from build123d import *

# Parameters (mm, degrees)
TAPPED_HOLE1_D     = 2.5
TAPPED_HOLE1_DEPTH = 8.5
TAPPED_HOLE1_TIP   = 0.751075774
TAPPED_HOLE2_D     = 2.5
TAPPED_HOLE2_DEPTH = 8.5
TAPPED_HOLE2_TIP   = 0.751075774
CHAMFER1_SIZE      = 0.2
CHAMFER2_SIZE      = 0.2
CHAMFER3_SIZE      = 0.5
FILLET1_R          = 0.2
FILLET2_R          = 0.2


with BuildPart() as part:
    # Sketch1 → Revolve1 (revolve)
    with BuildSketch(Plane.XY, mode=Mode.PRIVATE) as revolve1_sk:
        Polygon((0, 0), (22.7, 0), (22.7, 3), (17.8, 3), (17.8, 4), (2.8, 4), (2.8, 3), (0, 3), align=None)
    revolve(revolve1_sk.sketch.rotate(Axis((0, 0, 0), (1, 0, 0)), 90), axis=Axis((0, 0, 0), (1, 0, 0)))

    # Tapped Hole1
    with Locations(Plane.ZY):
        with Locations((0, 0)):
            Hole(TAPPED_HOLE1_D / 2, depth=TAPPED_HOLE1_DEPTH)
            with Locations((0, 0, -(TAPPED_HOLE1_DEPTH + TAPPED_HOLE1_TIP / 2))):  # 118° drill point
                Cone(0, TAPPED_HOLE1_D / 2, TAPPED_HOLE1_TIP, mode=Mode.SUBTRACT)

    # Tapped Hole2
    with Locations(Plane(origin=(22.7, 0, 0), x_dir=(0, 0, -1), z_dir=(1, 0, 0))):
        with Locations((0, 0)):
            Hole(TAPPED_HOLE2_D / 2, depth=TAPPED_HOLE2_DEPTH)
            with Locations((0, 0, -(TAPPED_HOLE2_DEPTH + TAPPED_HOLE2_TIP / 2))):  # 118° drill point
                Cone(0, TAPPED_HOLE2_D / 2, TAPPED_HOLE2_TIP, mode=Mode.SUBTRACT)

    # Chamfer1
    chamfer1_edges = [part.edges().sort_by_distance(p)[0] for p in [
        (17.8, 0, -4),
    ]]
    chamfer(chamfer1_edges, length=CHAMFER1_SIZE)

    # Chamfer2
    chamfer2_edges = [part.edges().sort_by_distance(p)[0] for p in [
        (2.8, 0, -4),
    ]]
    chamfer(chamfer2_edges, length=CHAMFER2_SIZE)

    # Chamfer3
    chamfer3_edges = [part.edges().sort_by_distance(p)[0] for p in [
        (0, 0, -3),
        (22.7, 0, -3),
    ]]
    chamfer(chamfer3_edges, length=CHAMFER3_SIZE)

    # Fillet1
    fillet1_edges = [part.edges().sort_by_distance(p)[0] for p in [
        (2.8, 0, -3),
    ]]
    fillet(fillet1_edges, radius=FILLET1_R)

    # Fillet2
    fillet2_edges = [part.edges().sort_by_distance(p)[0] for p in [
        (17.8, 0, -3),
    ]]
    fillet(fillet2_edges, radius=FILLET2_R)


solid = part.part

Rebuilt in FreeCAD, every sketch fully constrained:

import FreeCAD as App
import Part
import Sketcher

V = App.Vector


def edges_at(feature, points):
    """Names of the edges that pass closest to the given points."""
    edges = feature.Shape.Edges
    near = lambda p: min(range(len(edges)), key=lambda i: edges[i].distToShape(Part.Vertex(*p))[0])
    return sorted({f"Edge{near(p) + 1}" for p in points})


def add_polygon(sketch, points):
    """Adds a closed chain of lines whose ends are joined by coincident constraints."""
    first, n = sketch.GeometryCount, len(points)
    for a, b in zip(points, points[1:] + points[:1]):
        sketch.addGeometry(Part.LineSegment(App.Vector(*a, 0), App.Vector(*b, 0)), False)
    for i in range(n):
        sketch.addConstraint(Sketcher.Constraint("Coincident", first + i, 2, first + (i + 1) % n, 1))

doc = App.newDocument("Part")
body = doc.addObject("PartDesign::Body", "Body")

# Sketch on XY plane
sketch1 = doc.addObject("Sketcher::SketchObject", "Sketch")
body.addObject(sketch1)
sketch1.AttachmentSupport = (doc.XY_Plane, [""])
sketch1.MapMode = "FlatFace"
add_polygon(sketch1, [(0, 0), (22.7, 0), (22.7, 3), (17.8, 3), (17.8, 4), (2.8, 4), (2.8, 3), (0, 3)])  # lines 0-7
sketch1.addConstraint(Sketcher.Constraint("Horizontal", 0))
sketch1.addConstraint(Sketcher.Constraint("Vertical", 1))
sketch1.addConstraint(Sketcher.Constraint("Horizontal", 2))
sketch1.addConstraint(Sketcher.Constraint("Vertical", 3))
sketch1.addConstraint(Sketcher.Constraint("Horizontal", 4))
sketch1.addConstraint(Sketcher.Constraint("Vertical", 5))
sketch1.addConstraint(Sketcher.Constraint("Horizontal", 6))
sketch1.addConstraint(Sketcher.Constraint("Vertical", 7))
sketch1.addConstraint(Sketcher.Constraint("Coincident", 7, 2, -1, 1))
sketch1.addConstraint(Sketcher.Constraint("Horizontal", 2, 2, 5, 2))
sketch1.addConstraint(Sketcher.Constraint("DistanceX", 4, 2, 4, 1, 15.0))
sketch1.addConstraint(Sketcher.Constraint("DistanceY", 1, 1, 1, 2, 3.0))
sketch1.addConstraint(Sketcher.Constraint("DistanceY", 3, 1, 3, 2, 1.0))
sketch1.addConstraint(Sketcher.Constraint("DistanceX", 0, 1, 0, 2, 22.7))
sketch1.addConstraint(Sketcher.Constraint("DistanceX", 2, 2, 2, 1, 4.9))
revolution = doc.addObject("PartDesign::Revolution", "Revolution")
body.addObject(revolution)
revolution.Profile = sketch1
revolution.ReferenceAxis = (sketch1, ["H_Axis"])
revolution.Angle = 360

# Sketch on YZ plane
sketch2 = doc.addObject("Sketcher::SketchObject", "Sketch001")
body.addObject(sketch2)
sketch2.AttachmentSupport = (doc.YZ_Plane, [""])
sketch2.MapMode = "FlatFace"
sketch2.addGeometry(Part.Circle(V(0, 0, 0), V(0, 0, 1), 1.2), False)
sketch2.addConstraint(Sketcher.Constraint("Coincident", 0, 3, -1, 1))
sketch2.addConstraint(Sketcher.Constraint("Diameter", 0, 2.5))
doc.recompute()
hole = doc.addObject("PartDesign::Hole", "Hole")
body.addObject(hole)
hole.Profile = sketch2
hole.ThreadType = "None"
hole.Diameter = 2.5
hole.DepthType = "Dimension"
hole.Depth = 8.5
hole.DrillPoint = "Angled"
hole.DrillPointAngle = 118
hole.Reversed = True

# Sketch on YZ plane
sketch3 = doc.addObject("Sketcher::SketchObject", "Sketch002")
body.addObject(sketch3)
sketch3.AttachmentSupport = (doc.YZ_Plane, [""])
sketch3.MapMode = "FlatFace"
sketch3.AttachmentOffset = App.Placement(V(0, 0, 22.7), App.Rotation())
sketch3.addGeometry(Part.Circle(V(0, 0, 0), V(0, 0, 1), 1.2), False)
sketch3.addConstraint(Sketcher.Constraint("Coincident", 0, 3, -1, 1))
sketch3.addConstraint(Sketcher.Constraint("Diameter", 0, 2.5))
doc.recompute()
hole2 = doc.addObject("PartDesign::Hole", "Hole001")
body.addObject(hole2)
hole2.Profile = sketch3
hole2.ThreadType = "None"
hole2.Diameter = 2.5
hole2.DepthType = "Dimension"
hole2.Depth = 8.5
hole2.DrillPoint = "Angled"
hole2.DrillPointAngle = 118
doc.recompute()

chamfer = doc.addObject("PartDesign::Chamfer", "Chamfer")
body.addObject(chamfer)
chamfer.Base = (hole2, edges_at(hole2, [(17.8, 0, -4)]))
chamfer.Size = 0.2
doc.recompute()

chamfer2 = doc.addObject("PartDesign::Chamfer", "Chamfer001")
body.addObject(chamfer2)
chamfer2.Base = (chamfer, edges_at(chamfer, [(2.8, 0, -4)]))
chamfer2.Size = 0.2
doc.recompute()

chamfer3 = doc.addObject("PartDesign::Chamfer", "Chamfer002")
body.addObject(chamfer3)
chamfer3.Base = (chamfer2, edges_at(chamfer2, [(0, 0, -3), (22.7, 0, -3)]))
chamfer3.Size = 0.5
doc.recompute()

fillet = doc.addObject("PartDesign::Fillet", "Fillet")
body.addObject(fillet)
fillet.Base = (chamfer3, edges_at(chamfer3, [(2.8, 0, -3)]))
fillet.Radius = 0.2
doc.recompute()

fillet2 = doc.addObject("PartDesign::Fillet", "Fillet001")
body.addObject(fillet2)
fillet2.Base = (fillet, edges_at(fillet, [(17.8, 0, -3)]))
fillet2.Radius = 0.2

doc.recompute()
